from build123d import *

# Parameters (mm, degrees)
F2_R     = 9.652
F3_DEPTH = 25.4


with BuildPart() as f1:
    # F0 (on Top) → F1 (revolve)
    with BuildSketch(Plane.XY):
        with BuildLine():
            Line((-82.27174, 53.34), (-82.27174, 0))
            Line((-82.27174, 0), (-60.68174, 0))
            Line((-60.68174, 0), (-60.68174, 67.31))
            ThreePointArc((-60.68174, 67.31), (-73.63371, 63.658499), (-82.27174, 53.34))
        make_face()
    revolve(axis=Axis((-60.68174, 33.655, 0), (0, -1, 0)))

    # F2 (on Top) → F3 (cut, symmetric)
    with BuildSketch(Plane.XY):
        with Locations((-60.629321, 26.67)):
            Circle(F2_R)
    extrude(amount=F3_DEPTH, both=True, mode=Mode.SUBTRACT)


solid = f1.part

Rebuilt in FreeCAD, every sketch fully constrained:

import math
import FreeCAD as App
import Part
import Sketcher
Q = App.Units.Quantity

doc = App.newDocument("Part")
body = doc.addObject("PartDesign::Body", "Body")

sketch1 = body.newObject("Sketcher::SketchObject", "Sketch")
sketch1.AttachmentSupport = (doc.getObject("XY_Plane"), [""])
sketch1.MapMode = "FlatFace"
sketch1.addGeometry(Part.LineSegment(App.Vector(-82.27174, 53.34, 0), App.Vector(-82.27174, 0, 0)), False)
sketch1.addGeometry(Part.LineSegment(App.Vector(-82.27174, 0, 0), App.Vector(-60.68174, 0, 0)), False)
sketch1.addGeometry(Part.LineSegment(App.Vector(-60.68174, 0, 0), App.Vector(-60.68174, 67.31, 0)), False)
sketch1.addGeometry(Part.ArcOfCircle(Part.Circle(App.Vector(-61.245326, 44.512815, 0), App.Vector(0, 0, 1), 22.804151), math.radians(88.583838), math.radians(157.226648)), False)
sketch1.addGeometry(Part.LineSegment(App.Vector(-60.68174, 67.31, 0), App.Vector(-60.68174, 0, 0)), True)
sketch1.addConstraint(Sketcher.Constraint("Coincident", 0, 2, 1, 1))
sketch1.addConstraint(Sketcher.Constraint("Coincident", 1, 2, 2, 1))
sketch1.addConstraint(Sketcher.Constraint("Coincident", 2, 2, 3, 1))
sketch1.addConstraint(Sketcher.Constraint("Coincident", 3, 2, 0, 1))
sketch1.addConstraint(Sketcher.Constraint("Vertical", 0))
sketch1.addConstraint(Sketcher.Constraint("Horizontal", 1))
sketch1.addConstraint(Sketcher.Constraint("Vertical", 2))
sketch1.addConstraint(Sketcher.Constraint("Vertical", 4))
sketch1.addConstraint(Sketcher.Constraint("Coincident", 4, 1, 2, 2))
sketch1.addConstraint(Sketcher.Constraint("PointOnObject", 0, 2, -1))
sketch1.addConstraint(Sketcher.Constraint("PointOnObject", 4, 2, -1))
sketch1.addConstraint(Sketcher.Constraint("DistanceY", 0, 2, 0, 1, Q("2.1 in")))
sketch1.addConstraint(Sketcher.Constraint("DistanceX", 1, 1, 1, 2, Q("0.85 in")))
sketch1.addConstraint(Sketcher.Constraint("DistanceY", 2, 1, 2, 2, Q("2.65 in")))
sketch1.addConstraint(Sketcher.Constraint("Radius", 3, 22.804151))
sketch1.addConstraint(Sketcher.Constraint("DistanceX", 0, 2, -1, 1, 82.27174))
revolution = body.newObject("PartDesign::Revolution", "Revolution")
revolution.Profile = sketch1
revolution.ReferenceAxis = (sketch1, ["Axis0"])
revolution.Angle = 360

sketch2 = body.newObject("Sketcher::SketchObject", "Sketch001")
sketch2.AttachmentSupport = (doc.getObject("XY_Plane"), [""])
sketch2.MapMode = "FlatFace"
sketch2.addGeometry(Part.Circle(App.Vector(-60.629321, 26.67, 0), App.Vector(0, 0, 1), 9.652), False)
sketch2.addConstraint(Sketcher.Constraint("Diameter", 0, Q("0.76 in")))
sketch2.addConstraint(Sketcher.Constraint("DistanceY", -1, 1, 0, 3, Q("1.05 in")))
sketch2.addConstraint(Sketcher.Constraint("DistanceX", 0, 3, -1, 1, 60.629321))
pocket1 = body.newObject("PartDesign::Pocket", "Pocket")
pocket1.Profile = sketch2
pocket1.Length = Q("2 in")
pocket1.Midplane = True

doc.recompute()
